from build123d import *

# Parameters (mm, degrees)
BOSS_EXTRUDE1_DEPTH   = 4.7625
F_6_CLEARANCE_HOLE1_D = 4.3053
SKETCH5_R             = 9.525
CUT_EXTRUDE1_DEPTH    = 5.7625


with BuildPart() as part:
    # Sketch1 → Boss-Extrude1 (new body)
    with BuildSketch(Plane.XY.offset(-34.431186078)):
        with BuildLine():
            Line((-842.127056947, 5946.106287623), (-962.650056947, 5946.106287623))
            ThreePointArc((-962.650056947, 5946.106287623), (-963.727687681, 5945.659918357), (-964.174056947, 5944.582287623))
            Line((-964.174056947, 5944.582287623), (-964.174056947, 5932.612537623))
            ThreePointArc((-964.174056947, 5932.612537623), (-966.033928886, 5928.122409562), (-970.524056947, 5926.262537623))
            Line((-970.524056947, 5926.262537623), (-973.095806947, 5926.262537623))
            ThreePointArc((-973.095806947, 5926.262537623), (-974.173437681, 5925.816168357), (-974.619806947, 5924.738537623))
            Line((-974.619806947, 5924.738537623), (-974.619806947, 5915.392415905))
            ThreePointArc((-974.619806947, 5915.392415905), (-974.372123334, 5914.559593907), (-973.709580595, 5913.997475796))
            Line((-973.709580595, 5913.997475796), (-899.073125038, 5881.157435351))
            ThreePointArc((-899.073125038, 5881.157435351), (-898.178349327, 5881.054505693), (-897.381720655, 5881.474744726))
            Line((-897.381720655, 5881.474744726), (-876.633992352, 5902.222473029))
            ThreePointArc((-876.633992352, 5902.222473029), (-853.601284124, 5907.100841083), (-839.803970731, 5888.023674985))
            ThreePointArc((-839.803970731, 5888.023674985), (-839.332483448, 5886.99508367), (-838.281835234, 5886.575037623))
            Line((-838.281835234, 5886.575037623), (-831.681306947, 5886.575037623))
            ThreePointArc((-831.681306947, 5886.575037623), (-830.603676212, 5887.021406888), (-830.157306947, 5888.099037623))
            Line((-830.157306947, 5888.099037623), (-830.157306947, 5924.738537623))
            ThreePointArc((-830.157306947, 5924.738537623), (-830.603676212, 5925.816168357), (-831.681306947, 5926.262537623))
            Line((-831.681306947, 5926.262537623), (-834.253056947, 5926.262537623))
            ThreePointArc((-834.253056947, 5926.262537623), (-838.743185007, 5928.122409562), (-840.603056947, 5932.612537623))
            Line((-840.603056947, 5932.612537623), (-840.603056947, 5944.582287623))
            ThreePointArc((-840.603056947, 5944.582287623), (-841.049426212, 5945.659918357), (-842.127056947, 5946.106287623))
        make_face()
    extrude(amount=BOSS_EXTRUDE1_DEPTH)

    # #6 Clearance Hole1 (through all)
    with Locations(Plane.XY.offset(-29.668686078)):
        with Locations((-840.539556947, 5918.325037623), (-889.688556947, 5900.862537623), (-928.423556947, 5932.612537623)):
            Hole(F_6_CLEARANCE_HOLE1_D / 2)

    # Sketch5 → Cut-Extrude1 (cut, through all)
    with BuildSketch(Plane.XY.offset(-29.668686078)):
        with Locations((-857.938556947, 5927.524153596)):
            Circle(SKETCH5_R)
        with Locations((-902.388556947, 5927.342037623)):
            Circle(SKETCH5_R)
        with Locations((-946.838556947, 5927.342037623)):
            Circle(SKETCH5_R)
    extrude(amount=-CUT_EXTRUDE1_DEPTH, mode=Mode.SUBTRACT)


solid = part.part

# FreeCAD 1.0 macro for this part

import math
import FreeCAD as App
import Part
import Sketcher

V = App.Vector
Q = App.Units.Quantity

doc = App.newDocument("Part")
body = doc.addObject("PartDesign::Body", "Body")

# Sketch on XY plane
sketch1 = body.newObject("Sketcher::SketchObject", "Sketch")
sketch1.AttachmentSupport = (doc.getObject("XY_Plane"), [""])
sketch1.MapMode = "FlatFace"
sketch1.AttachmentOffset = App.Placement(V(0, 0, -34.431186), App.Rotation())
sketch1.addGeometry([
    Part.LineSegment(V(-842.1, 5946.1, 0), V(-962.7, 5946.1, 0)),  # 0
    Part.ArcOfCircle(Part.Circle(V(-962.7, 5944.6, 0), V(0, 0, 1), 1.5), math.radians(90), math.radians(180)),  # 1
    Part.LineSegment(V(-964.2, 5944.6, 0), V(-964.2, 5932.6, 0)),  # 2
    Part.ArcOfCircle(Part.Circle(V(-970.5, 5932.6, 0), V(0, 0, 1), 6.3), math.radians(-90), math.radians(0)),  # 3
    Part.LineSegment(V(-970.5, 5926.3, 0), V(-973.1, 5926.3, 0)),  # 4
    Part.ArcOfCircle(Part.Circle(V(-973.1, 5924.7, 0), V(0, 0, 1), 1.5), math.radians(90), math.radians(180)),  # 5
    Part.LineSegment(V(-974.6, 5924.7, 0), V(-974.6, 5915.4, 0)),  # 6
    Part.ArcOfCircle(Part.Circle(V(-973.1, 5915.4, 0), V(0, 0, 1), 1.5), math.radians(180), math.radians(246)),  # 7
    Part.LineSegment(V(-973.7, 5914, 0), V(-899.1, 5881.2, 0)),  # 8
    Part.ArcOfCircle(Part.Circle(V(-898.5, 5882.6, 0), V(0, 0, 1), 1.5), math.radians(-114), math.radians(-45)),  # 9
    Part.LineSegment(V(-897.4, 5881.5, 0), V(-876.6, 5902.2, 0)),  # 10
    Part.ArcOfCircle(Part.Circle(V(-861.4, 5887, 0), V(0, 0, 1), 21.6), math.radians(3), math.radians(135)),  # 11
    Part.ArcOfCircle(Part.Circle(V(-838.3, 5888.1, 0), V(0, 0, 1), 1.5), math.radians(-177), math.radians(-90)),  # 12
    Part.LineSegment(V(-838.3, 5886.6, 0), V(-831.7, 5886.6, 0)),  # 13
    Part.ArcOfCircle(Part.Circle(V(-831.7, 5888.1, 0), V(0, 0, 1), 1.5), math.radians(-90), math.radians(0)),  # 14
    Part.LineSegment(V(-830.2, 5888.1, 0), V(-830.2, 5924.7, 0)),  # 15
    Part.ArcOfCircle(Part.Circle(V(-831.7, 5924.7, 0), V(0, 0, 1), 1.5), math.radians(0), math.radians(90)),  # 16
    Part.LineSegment(V(-831.7, 5926.3, 0), V(-834.3, 5926.3, 0)),  # 17
    Part.ArcOfCircle(Part.Circle(V(-834.3, 5932.6, 0), V(0, 0, 1), 6.3), math.radians(180), math.radians(270)),  # 18
    Part.LineSegment(V(-840.6, 5932.6, 0), V(-840.6, 5944.6, 0)),  # 19
    Part.ArcOfCircle(Part.Circle(V(-842.1, 5944.6, 0), V(0, 0, 1), 1.5), math.radians(0), math.radians(90)),  # 20
], False)
sketch1.addConstraint([
    Sketcher.Constraint("Tangent", 0, 2, 1, 1),
    Sketcher.Constraint("Tangent", 1, 2, 2, 1),
    Sketcher.Constraint("Tangent", 2, 2, 3, 2),
    Sketcher.Constraint("Tangent", 3, 1, 4, 1),
    Sketcher.Constraint("Tangent", 4, 2, 5, 1),
    Sketcher.Constraint("Tangent", 5, 2, 6, 1),
    Sketcher.Constraint("Tangent", 6, 2, 7, 1),
    Sketcher.Constraint("Tangent", 7, 2, 8, 1),
    Sketcher.Constraint("Tangent", 8, 2, 9, 1),
    Sketcher.Constraint("Tangent", 9, 2, 10, 1),
    Sketcher.Constraint("Tangent", 10, 2, 11, 2),
    Sketcher.Constraint("Tangent", 11, 1, 12, 1),
    Sketcher.Constraint("Tangent", 12, 2, 13, 1),
    Sketcher.Constraint("Tangent", 13, 2, 14, 1),
    Sketcher.Constraint("Tangent", 14, 2, 15, 1),
    Sketcher.Constraint("Tangent", 15, 2, 16, 1),
    Sketcher.Constraint("Tangent", 16, 2, 17, 1),
    Sketcher.Constraint("Tangent", 17, 2, 18, 2),
    Sketcher.Constraint("Tangent", 18, 1, 19, 1),
    Sketcher.Constraint("Tangent", 19, 2, 20, 1),
    Sketcher.Constraint("Tangent", 20, 2, 0, 1),
    Sketcher.Constraint("Horizontal", 0),
    Sketcher.Constraint("Vertical", 2),
    Sketcher.Constraint("Horizontal", 4),
    Sketcher.Constraint("Vertical", 6),
    Sketcher.Constraint("Horizontal", 13),
    Sketcher.Constraint("Vertical", 15),
    Sketcher.Constraint("Horizontal", 17),
    Sketcher.Constraint("Vertical", 19),
    Sketcher.Constraint("Equal", 1, 5),
    Sketcher.Constraint("Equal", 5, 7),
    Sketcher.Constraint("Equal", 7, 9),
    Sketcher.Constraint("Equal", 9, 12),
    Sketcher.Constraint("Equal", 12, 14),
    Sketcher.Constraint("Equal", 14, 16),
    Sketcher.Constraint("Equal", 3, 18),
    Sketcher.Constraint("Equal", 16, 20),
    Sketcher.Constraint("Horizontal", 5, 3, 16, 3),
    Sketcher.Constraint("Equal", 4, 17),
    Sketcher.Constraint("Radius", 1, Q("0.06 in")),
    Sketcher.Constraint("Radius", 3, Q("0.25 in")),
    Sketcher.Constraint("Radius", 11, Q("0.85 in")),
    Sketcher.Constraint("Angle", 10, Q("45 deg")),
    Sketcher.Constraint("DistanceX", 0, 2, 0, 1, Q("4.745 in")),
    Sketcher.Constraint("DistanceY", 15, 1, 15, 2, Q("1.4425 in")),
    Sketcher.Constraint("DistanceY", 5, 3, 1, 3, Q("0.78125 in")),
    Sketcher.Constraint("DistanceY", 11, 3, 12, 3, Q("0.045 in")),
    Sketcher.Constraint("DistanceX", 1, 3, 14, 3, Q("5.15625 in")),
    Sketcher.Constraint("DistanceX", 1, 3, 11, 3, Q("3.9875 in")),
    Sketcher.Constraint("DistanceY", 6, 2, 6, 1, 9.346122),
    Sketcher.Constraint("Distance", 10, 29.341719),
    Sketcher.Constraint("DistanceX", 9, 3, -1, 1, 898.459351),
    Sketcher.Constraint("DistanceY", -1, 1, 1, 3, 5944.582288),
])
pad1 = body.newObject("PartDesign::Pad", "Pad")
pad1.Profile = sketch1
pad1.Length = Q("0.1875 in")

# Sketch on XY plane
sketch2 = body.newObject("Sketcher::SketchObject", "Sketch001")
sketch2.AttachmentSupport = (doc.getObject("XY_Plane"), [""])
sketch2.MapMode = "FlatFace"
sketch2.AttachmentOffset = App.Placement(V(0, 0, -29.668686), App.Rotation())
sketch2.addGeometry([
    Part.Circle(V(-840.5, 5918.3, 0), V(0, 0, 1), 2.2),
    Part.Circle(V(-889.7, 5900.9, 0), V(0, 0, 1), 2.2),
    Part.Circle(V(-928.4, 5932.6, 0), V(0, 0, 1), 2.2),
], False)
sketch2.addConstraint([
    Sketcher.Constraint("Equal", 0, 1),
    Sketcher.Constraint("Equal", 1, 2),
    Sketcher.Constraint("Diameter", 0, Q("0.1695 in")),
    Sketcher.Constraint("DistanceY", 1, 3, 2, 3, Q("1.25 in")),
    Sketcher.Constraint("DistanceX", 2, 3, 0, 3, Q("3.46 in")),
    Sketcher.Constraint("DistanceX", 1, 3, 0, 3, Q("1.935 in")),
    Sketcher.Constraint("DistanceY", 1, 3, 0, 3, Q("0.6875 in")),
    Sketcher.Constraint("DistanceX", 0, 3, -1, 1, 840.539557),
    Sketcher.Constraint("DistanceY", -1, 1, 0, 3, 5918.325038),
])
doc.recompute()
hole = body.newObject("PartDesign::Hole", "Hole")
hole.Profile = sketch2
hole.ThreadType = "None"
hole.Diameter = Q("0.1695 in")
hole.DepthType = "ThroughAll"

# Sketch on XY plane
sketch3 = body.newObject("Sketcher::SketchObject", "Sketch002")
sketch3.AttachmentSupport = (doc.getObject("XY_Plane"), [""])
sketch3.MapMode = "FlatFace"
sketch3.AttachmentOffset = App.Placement(V(0, 0, -29.668686), App.Rotation())
sketch3.addGeometry([
    Part.Circle(V(-858, 5928, 0), V(0, 0, 1), 10),
    Part.Circle(V(-902, 5927, 0), V(0, 0, 1), 10),
    Part.Circle(V(-947, 5927, 0), V(0, 0, 1), 10),
], False)
sketch3.addConstraint([
    Sketcher.Constraint("Equal", 0, 1),
    Sketcher.Constraint("Equal", 1, 2),
    Sketcher.Constraint("Horizontal", 1, 3, 2, 3),
    Sketcher.Constraint("Diameter", 0, Q("0.75 in")),
    Sketcher.Constraint("DistanceX", 2, 3, 0, 3, Q("3.5 in")),
    Sketcher.Constraint("DistanceX", 1, 3, 0, 3, Q("1.75 in")),
    Sketcher.Constraint("DistanceX", 0, 3, -1, 1, 857.938557),
    Sketcher.Constraint("DistanceY", -1, 1, 0, 3, 5927.524154),
    Sketcher.Constraint("DistanceY", -1, 1, 1, 3, 5927.342038),
])
pocket1 = body.newObject("PartDesign::Pocket", "Pocket")
pocket1.Profile = sketch3
pocket1.Type = "ThroughAll"

doc.recompute()
